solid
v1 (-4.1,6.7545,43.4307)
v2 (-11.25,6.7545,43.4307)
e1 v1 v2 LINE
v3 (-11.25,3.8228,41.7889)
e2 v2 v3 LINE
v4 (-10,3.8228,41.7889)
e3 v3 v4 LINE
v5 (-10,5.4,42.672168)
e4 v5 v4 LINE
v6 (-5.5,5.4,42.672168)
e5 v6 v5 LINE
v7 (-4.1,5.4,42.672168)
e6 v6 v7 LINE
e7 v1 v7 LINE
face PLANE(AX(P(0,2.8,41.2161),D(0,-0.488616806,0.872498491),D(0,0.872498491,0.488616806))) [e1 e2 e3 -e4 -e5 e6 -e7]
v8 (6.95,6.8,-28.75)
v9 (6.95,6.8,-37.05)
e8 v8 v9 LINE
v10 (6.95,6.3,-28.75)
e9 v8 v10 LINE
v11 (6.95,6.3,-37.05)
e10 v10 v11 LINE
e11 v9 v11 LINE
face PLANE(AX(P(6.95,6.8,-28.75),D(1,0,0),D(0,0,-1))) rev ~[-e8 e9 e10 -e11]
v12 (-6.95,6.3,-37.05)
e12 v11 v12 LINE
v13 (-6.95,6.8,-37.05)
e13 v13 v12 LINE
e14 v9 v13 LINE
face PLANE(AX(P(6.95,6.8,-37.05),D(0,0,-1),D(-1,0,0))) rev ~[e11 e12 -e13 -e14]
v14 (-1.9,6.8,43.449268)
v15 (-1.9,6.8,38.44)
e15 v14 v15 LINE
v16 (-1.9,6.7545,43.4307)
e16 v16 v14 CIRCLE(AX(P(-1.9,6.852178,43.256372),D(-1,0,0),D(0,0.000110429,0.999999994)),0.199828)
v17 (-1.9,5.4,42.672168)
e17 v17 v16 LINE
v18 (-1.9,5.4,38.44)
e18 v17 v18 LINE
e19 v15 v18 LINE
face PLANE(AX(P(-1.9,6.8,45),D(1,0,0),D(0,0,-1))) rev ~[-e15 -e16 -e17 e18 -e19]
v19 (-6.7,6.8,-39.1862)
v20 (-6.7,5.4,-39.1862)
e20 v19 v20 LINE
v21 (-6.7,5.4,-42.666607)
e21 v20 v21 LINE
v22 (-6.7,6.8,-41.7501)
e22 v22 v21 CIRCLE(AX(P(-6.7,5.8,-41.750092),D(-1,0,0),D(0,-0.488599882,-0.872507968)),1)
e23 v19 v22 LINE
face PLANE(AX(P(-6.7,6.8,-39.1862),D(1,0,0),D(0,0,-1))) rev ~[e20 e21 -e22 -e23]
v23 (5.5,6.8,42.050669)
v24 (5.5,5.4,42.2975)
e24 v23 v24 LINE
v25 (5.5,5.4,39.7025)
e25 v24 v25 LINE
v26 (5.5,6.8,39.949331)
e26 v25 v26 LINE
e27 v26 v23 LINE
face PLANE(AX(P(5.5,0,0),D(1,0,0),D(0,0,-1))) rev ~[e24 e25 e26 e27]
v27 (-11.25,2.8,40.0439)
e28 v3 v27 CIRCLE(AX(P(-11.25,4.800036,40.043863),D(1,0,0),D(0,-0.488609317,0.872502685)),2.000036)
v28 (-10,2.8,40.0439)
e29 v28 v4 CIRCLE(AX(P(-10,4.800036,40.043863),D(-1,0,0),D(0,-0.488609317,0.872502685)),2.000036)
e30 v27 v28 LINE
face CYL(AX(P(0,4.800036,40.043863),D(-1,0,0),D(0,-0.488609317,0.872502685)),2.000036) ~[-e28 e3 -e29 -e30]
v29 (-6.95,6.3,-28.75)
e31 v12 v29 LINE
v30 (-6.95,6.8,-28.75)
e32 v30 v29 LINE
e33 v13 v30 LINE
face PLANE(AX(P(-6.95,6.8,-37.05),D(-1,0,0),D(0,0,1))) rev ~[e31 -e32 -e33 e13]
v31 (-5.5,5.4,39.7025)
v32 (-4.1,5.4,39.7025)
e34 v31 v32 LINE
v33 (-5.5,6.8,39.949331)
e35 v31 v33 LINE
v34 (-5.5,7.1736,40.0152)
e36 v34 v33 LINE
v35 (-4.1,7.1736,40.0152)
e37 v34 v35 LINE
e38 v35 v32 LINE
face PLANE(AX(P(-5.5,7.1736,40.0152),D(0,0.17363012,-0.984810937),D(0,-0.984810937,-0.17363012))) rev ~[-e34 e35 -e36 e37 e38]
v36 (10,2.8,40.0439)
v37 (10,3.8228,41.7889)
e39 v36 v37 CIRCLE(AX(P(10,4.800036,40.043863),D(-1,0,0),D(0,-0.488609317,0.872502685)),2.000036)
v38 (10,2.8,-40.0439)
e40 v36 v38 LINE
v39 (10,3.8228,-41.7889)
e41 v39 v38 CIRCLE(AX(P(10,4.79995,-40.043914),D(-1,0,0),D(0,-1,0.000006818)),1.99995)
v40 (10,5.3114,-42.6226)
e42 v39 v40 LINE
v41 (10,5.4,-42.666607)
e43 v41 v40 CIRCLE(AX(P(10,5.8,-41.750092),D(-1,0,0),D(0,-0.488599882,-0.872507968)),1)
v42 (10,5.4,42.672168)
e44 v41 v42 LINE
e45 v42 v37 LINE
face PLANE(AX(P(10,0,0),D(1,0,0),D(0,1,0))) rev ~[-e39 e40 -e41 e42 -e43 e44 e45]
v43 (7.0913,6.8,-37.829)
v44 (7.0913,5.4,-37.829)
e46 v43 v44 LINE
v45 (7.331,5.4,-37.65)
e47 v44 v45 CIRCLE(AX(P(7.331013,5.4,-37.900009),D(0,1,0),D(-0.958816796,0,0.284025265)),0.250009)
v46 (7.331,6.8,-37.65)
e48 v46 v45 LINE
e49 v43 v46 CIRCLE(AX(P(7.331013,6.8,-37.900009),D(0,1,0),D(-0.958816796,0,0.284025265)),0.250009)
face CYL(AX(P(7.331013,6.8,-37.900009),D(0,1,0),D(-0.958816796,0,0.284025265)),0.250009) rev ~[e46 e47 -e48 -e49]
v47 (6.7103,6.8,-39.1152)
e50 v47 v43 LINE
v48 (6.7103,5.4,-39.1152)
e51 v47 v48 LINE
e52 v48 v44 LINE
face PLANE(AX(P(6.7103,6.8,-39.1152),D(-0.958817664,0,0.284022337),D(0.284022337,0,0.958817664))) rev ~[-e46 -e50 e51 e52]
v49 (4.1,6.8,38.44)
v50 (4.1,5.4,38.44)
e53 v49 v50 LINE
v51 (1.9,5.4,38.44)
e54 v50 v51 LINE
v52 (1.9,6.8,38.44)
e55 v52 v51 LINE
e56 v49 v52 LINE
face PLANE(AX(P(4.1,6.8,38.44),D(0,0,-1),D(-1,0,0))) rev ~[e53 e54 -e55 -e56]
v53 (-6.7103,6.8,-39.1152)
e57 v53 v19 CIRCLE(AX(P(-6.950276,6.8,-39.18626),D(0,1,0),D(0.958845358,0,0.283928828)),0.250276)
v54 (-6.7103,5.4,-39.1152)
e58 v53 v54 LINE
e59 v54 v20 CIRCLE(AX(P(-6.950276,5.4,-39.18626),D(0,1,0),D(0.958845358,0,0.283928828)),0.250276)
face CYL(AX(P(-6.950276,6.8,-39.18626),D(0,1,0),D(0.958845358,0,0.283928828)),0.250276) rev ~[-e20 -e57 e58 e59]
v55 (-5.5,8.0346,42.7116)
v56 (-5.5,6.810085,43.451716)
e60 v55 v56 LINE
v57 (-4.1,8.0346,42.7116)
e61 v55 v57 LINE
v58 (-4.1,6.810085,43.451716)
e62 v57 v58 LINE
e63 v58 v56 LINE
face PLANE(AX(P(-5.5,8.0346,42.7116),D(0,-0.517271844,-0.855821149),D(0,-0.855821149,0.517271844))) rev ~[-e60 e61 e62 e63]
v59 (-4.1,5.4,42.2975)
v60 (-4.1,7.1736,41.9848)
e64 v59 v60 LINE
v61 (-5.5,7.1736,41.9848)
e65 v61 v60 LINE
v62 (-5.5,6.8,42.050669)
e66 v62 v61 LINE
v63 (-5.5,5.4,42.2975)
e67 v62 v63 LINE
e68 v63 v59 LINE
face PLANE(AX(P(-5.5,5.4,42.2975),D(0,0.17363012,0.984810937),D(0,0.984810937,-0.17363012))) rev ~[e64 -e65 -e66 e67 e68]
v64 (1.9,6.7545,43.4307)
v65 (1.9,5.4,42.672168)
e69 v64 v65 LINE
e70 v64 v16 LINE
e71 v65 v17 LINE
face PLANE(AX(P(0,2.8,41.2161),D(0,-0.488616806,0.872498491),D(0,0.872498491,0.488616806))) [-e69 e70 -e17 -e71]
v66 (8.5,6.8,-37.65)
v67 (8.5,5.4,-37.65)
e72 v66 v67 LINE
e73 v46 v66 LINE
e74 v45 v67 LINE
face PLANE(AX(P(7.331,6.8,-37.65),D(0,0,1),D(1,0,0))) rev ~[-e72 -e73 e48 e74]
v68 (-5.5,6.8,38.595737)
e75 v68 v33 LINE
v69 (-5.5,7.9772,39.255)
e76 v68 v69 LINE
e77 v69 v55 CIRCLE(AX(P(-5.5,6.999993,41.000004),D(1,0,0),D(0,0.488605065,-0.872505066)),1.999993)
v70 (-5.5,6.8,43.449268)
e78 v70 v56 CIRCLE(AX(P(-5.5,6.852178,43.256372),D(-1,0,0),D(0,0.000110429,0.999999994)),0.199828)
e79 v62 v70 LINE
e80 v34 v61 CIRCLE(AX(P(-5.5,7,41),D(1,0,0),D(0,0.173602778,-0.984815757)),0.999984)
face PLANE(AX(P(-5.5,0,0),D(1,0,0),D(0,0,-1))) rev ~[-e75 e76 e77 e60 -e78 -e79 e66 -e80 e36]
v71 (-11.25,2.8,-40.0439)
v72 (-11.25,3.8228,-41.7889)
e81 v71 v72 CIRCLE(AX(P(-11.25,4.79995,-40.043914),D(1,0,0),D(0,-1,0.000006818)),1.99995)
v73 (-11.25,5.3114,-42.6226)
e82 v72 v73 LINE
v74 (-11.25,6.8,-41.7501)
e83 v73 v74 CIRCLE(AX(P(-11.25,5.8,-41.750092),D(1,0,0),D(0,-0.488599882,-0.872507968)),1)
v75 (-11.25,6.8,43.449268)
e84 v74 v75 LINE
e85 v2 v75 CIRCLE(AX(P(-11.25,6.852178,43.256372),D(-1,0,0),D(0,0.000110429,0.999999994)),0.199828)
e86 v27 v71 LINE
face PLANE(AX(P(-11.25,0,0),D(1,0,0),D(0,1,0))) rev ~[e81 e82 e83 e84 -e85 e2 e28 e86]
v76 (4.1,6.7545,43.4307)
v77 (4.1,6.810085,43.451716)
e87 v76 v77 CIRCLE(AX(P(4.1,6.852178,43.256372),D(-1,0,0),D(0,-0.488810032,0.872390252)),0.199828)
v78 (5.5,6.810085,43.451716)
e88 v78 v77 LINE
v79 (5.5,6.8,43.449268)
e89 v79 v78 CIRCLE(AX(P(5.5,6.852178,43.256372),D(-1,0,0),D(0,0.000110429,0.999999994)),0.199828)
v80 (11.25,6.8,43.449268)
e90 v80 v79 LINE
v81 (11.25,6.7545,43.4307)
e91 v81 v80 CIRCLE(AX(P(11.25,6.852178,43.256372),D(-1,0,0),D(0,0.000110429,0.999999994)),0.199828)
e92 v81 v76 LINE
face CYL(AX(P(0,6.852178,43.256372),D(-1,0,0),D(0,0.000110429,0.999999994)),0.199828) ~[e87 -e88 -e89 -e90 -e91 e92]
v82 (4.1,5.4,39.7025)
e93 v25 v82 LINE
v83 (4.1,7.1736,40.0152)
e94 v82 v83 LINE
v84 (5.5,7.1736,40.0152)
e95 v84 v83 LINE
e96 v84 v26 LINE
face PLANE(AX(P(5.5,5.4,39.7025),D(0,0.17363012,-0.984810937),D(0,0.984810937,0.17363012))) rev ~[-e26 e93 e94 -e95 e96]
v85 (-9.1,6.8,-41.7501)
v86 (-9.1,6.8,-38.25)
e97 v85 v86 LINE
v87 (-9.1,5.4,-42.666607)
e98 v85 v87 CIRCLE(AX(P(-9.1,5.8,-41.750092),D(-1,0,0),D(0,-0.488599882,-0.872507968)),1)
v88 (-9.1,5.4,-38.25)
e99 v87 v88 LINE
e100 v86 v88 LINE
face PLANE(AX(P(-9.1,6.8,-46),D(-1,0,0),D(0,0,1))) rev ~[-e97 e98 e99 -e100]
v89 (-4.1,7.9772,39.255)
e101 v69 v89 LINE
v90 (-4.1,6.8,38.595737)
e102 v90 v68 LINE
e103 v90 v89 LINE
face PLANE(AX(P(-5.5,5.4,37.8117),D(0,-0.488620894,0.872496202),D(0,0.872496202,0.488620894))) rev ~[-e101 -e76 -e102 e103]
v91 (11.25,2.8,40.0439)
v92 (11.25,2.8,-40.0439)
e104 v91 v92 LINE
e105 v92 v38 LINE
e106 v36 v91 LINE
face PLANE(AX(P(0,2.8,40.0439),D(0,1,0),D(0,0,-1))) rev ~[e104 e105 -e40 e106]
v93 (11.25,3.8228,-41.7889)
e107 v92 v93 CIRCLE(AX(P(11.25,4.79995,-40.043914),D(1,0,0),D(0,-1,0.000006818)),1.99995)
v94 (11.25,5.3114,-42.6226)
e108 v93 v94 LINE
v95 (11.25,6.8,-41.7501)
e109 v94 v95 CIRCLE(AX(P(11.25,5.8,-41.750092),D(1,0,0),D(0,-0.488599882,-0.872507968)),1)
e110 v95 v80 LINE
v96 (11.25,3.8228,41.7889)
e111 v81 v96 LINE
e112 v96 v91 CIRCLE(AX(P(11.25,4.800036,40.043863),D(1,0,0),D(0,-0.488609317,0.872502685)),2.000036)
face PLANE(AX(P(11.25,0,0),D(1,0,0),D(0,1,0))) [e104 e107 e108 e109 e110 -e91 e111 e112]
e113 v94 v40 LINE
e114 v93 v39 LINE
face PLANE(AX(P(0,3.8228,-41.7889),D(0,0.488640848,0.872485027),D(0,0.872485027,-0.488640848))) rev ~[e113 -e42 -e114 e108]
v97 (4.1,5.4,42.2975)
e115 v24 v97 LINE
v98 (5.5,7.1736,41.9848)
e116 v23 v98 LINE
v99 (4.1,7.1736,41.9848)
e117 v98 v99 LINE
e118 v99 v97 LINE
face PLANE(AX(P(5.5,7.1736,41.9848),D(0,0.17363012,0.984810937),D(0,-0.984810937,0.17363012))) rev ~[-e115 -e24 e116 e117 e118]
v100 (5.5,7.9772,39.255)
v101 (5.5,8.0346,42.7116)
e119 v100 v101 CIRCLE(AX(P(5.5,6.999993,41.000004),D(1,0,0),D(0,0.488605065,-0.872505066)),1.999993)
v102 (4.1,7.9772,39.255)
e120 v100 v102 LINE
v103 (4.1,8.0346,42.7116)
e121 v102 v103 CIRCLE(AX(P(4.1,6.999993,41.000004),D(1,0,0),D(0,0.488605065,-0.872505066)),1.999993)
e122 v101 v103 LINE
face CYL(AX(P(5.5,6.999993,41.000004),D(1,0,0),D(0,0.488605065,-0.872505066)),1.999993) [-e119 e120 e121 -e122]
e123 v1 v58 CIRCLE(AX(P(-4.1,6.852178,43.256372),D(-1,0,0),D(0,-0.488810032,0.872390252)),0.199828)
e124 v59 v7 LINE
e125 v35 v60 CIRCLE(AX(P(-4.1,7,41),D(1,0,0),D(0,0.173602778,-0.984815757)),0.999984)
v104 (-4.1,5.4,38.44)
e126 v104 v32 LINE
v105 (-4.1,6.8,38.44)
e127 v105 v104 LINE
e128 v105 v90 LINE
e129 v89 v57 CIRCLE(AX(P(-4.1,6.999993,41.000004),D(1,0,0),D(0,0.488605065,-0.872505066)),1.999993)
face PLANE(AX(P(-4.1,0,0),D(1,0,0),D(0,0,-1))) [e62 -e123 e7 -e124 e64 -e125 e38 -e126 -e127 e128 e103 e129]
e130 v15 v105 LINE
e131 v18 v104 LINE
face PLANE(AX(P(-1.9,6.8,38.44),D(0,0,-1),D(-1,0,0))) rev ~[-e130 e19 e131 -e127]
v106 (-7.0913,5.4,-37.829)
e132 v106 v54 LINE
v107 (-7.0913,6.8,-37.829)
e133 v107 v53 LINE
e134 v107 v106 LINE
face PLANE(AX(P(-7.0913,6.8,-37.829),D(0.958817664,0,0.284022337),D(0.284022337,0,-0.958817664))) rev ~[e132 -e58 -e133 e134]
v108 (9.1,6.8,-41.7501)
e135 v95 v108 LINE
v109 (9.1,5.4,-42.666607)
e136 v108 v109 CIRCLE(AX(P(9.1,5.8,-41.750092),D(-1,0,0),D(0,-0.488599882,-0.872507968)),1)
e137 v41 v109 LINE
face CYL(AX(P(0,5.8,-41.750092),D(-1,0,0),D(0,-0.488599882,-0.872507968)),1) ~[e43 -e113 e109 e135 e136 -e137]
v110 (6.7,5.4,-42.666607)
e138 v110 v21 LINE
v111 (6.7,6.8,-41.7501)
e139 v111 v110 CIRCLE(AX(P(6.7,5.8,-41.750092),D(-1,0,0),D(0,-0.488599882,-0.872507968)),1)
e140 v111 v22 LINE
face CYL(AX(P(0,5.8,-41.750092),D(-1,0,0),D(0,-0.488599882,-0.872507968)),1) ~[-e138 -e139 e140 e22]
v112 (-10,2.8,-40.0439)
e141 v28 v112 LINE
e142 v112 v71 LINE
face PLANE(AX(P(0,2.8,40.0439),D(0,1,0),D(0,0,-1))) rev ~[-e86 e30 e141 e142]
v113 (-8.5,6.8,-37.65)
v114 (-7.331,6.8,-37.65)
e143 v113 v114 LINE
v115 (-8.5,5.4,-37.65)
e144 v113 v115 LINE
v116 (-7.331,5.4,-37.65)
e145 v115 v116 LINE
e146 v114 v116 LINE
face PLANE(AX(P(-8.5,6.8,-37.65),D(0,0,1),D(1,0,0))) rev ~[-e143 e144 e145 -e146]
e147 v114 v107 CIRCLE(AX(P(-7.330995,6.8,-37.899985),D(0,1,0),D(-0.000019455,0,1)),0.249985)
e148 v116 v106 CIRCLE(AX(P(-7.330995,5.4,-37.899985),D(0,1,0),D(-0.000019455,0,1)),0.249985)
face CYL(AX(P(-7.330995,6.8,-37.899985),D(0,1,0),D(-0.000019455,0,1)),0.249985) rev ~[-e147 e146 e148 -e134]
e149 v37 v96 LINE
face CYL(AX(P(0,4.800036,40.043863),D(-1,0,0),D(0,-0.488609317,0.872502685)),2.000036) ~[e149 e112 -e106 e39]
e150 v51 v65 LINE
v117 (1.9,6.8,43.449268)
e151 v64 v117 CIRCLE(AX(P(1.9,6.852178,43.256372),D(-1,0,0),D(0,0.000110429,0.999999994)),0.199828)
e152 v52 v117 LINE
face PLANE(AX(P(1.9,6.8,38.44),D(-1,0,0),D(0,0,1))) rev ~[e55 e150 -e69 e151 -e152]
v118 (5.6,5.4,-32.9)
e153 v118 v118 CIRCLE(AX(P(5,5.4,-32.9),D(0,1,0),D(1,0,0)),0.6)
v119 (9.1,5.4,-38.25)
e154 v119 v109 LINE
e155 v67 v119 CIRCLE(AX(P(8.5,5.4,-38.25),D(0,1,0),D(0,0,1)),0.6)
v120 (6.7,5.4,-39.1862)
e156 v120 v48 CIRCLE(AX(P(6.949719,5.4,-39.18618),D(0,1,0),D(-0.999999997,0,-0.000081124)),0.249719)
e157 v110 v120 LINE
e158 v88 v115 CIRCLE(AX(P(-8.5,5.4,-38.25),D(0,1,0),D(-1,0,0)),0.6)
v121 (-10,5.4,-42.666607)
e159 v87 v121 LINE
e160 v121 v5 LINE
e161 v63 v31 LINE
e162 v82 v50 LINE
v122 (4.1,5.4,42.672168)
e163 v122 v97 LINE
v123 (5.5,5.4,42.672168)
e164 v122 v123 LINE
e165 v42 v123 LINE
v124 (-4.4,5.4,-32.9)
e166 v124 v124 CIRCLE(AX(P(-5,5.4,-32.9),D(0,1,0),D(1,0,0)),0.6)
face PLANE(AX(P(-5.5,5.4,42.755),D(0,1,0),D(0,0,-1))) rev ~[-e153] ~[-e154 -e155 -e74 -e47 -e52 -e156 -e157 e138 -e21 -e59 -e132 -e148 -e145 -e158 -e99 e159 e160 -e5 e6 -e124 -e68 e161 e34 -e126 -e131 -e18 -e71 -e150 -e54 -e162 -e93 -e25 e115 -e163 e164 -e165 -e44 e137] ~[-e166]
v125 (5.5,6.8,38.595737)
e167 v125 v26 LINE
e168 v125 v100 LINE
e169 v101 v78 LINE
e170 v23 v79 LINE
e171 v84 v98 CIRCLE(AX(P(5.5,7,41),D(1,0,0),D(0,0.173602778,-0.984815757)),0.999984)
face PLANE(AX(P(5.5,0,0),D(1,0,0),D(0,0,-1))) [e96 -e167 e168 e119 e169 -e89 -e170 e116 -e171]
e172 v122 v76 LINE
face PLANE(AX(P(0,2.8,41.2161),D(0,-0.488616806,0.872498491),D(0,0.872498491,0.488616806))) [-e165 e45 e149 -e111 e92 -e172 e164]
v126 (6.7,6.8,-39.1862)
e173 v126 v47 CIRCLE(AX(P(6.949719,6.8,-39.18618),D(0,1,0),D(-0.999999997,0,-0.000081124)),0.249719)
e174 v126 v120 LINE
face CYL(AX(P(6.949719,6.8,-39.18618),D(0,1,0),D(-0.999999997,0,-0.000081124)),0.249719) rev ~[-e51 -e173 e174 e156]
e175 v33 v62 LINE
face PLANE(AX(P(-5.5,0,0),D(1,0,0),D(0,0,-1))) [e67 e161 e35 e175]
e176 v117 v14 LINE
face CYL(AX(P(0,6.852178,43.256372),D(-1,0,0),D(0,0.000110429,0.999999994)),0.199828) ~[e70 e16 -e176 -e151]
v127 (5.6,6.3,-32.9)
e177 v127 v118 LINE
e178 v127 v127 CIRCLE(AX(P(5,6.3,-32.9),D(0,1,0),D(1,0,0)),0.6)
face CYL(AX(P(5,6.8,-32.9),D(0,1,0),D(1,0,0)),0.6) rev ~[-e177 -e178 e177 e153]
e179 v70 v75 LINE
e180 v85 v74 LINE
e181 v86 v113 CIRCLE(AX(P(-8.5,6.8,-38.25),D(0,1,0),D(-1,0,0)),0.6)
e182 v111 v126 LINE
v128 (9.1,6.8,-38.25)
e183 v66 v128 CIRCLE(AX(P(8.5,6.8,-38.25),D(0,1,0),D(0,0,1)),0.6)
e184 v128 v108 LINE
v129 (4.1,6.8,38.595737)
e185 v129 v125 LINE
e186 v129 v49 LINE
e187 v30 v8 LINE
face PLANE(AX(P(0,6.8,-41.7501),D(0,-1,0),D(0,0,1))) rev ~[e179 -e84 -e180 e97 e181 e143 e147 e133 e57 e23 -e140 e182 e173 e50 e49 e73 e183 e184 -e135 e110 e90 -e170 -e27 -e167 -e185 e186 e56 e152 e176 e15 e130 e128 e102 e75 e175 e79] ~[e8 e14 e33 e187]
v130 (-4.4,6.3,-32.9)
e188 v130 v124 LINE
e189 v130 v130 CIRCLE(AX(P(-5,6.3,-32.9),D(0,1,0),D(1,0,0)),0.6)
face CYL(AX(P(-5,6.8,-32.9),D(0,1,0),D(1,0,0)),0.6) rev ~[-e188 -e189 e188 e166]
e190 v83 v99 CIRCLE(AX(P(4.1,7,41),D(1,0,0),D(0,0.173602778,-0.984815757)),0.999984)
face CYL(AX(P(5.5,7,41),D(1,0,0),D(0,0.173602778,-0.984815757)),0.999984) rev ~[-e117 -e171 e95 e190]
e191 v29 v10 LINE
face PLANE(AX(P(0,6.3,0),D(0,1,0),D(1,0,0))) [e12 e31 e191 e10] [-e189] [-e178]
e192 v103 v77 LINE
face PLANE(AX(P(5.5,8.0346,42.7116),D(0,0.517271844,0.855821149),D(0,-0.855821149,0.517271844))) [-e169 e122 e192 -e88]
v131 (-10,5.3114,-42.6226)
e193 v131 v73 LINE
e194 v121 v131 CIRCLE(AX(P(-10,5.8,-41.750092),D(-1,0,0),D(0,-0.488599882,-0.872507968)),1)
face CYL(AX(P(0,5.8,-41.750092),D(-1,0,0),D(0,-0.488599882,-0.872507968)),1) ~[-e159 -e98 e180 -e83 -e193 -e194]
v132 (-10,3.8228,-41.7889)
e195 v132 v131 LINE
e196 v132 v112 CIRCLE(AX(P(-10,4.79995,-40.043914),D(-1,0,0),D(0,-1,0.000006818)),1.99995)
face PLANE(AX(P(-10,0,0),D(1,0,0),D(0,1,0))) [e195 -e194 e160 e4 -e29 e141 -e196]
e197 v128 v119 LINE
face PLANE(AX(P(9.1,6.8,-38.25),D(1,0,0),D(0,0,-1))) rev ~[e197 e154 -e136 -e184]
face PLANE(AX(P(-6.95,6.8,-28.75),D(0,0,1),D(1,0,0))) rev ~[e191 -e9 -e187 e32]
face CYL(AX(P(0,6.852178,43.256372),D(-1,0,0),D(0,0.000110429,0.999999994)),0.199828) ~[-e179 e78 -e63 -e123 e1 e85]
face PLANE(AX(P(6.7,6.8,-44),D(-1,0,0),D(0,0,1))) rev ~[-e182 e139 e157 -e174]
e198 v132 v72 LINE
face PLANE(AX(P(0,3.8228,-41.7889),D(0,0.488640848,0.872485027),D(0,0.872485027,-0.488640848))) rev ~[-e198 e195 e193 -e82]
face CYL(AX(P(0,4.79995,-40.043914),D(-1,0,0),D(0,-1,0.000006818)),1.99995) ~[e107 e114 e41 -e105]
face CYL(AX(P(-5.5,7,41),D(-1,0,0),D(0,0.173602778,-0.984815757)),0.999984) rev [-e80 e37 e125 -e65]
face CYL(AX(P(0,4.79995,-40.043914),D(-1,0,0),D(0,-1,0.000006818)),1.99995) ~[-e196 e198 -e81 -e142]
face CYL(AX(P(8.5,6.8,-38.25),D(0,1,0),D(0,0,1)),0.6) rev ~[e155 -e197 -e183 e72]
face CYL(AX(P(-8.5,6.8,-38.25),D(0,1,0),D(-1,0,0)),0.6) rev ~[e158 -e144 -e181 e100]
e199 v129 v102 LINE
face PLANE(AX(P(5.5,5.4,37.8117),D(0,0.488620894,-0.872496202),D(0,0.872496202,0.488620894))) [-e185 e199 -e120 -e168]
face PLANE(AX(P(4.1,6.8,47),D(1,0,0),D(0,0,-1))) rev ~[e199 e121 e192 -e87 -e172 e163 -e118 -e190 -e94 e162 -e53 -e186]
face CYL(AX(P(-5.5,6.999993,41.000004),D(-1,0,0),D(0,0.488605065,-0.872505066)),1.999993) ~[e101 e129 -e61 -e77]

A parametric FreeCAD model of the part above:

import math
import FreeCAD as App
import Part
import Sketcher

V = App.Vector
Q = App.Units.Quantity

doc = App.newDocument("Part")
body = doc.addObject("PartDesign::Body", "Body")

sketch1 = body.newObject("Sketcher::SketchObject", "Sketch")
sketch1.AttachmentSupport = (doc.getObject("YZ_Plane"), [""])
sketch1.MapMode = "FlatFace"
sketch1.addGeometry(Part.LineSegment(V(6.8, -41.8, 0), V(6.8, 43.5, 0)), False)
sketch1.addGeometry(Part.LineSegment(V(6.8, 43.5, 0), V(3.8, 41.8, 0)), False)
sketch1.addGeometry(Part.ArcOfCircle(Part.Circle(V(4.8, 40, 0), V(0, 0, 1), 2), math.radians(119), math.radians(180)), False)
sketch1.addGeometry(Part.LineSegment(V(2.8, 40, 0), V(2.8, -40, 0)), False)
sketch1.addGeometry(Part.ArcOfCircle(Part.Circle(V(4.8, -40, 0), V(0, 0, 1), 2), math.radians(180), math.radians(241)), False)
sketch1.addGeometry(Part.LineSegment(V(3.8, -41.8, 0), V(5.3, -42.6, 0)), False)
sketch1.addGeometry(Part.ArcOfCircle(Part.Circle(V(5.8, -41.8, 0), V(0, 0, 1), 1), math.radians(-119), math.radians(0)), False)
sketch1.addConstraint(Sketcher.Constraint("Coincident", 0, 2, 1, 1))
sketch1.addConstraint(Sketcher.Constraint("Tangent", 1, 2, 2, 1))
sketch1.addConstraint(Sketcher.Constraint("Tangent", 2, 2, 3, 1))
sketch1.addConstraint(Sketcher.Constraint("Tangent", 3, 2, 4, 1))
sketch1.addConstraint(Sketcher.Constraint("Tangent", 4, 2, 5, 1))
sketch1.addConstraint(Sketcher.Constraint("Tangent", 5, 2, 6, 1))
sketch1.addConstraint(Sketcher.Constraint("Tangent", 6, 2, 0, 1))
sketch1.addConstraint(Sketcher.Constraint("Vertical", 0))
sketch1.addConstraint(Sketcher.Constraint("Vertical", 3))
sketch1.addConstraint(Sketcher.Constraint("Equal", 2, 4))
sketch1.addConstraint(Sketcher.Constraint("Symmetric", 1, 2, 4, 2, -1))
sketch1.addConstraint(Sketcher.Constraint("Radius", 2, 2.0))
sketch1.addConstraint(Sketcher.Constraint("Radius", 6, 1.0))
sketch1.addConstraint(Sketcher.Constraint("DistanceX", 4, 3, 6, 3, 1.0))
sketch1.addConstraint(Sketcher.Constraint("DistanceX", -1, 1, 2, 3, 4.8))
sketch1.addConstraint(Sketcher.Constraint("Angle", 1, Q("-150.7502 deg")))
sketch1.addConstraint(Sketcher.Constraint("DistanceY", 4, 3, 0, 2, 83.5))
pad1 = body.newObject("PartDesign::Pad", "Pad")
pad1.Profile = sketch1
pad1.Length = 22.5
pad1.Midplane = True

sketch2 = body.newObject("Sketcher::SketchObject", "Sketch001")
sketch2.AttachmentSupport = (doc.getObject("YZ_Plane"), [""])
sketch2.MapMode = "FlatFace"
sketch2.addGeometry(Part.LineSegment(V(7.16, 48.3, 0), V(6.78, 48.4, 0)), False)
sketch2.addGeometry(Part.LineSegment(V(6.78, 48.4, 0), V(-1, 48.4, 0)), False)
sketch2.addGeometry(Part.LineSegment(V(-1, 48.4, 0), V(-1, -48.4, 0)), False)
sketch2.addGeometry(Part.LineSegment(V(-1, -48.4, 0), V(6.78, -48.4, 0)), False)
sketch2.addGeometry(Part.LineSegment(V(6.78, -48.4, 0), V(7.16, -48.3, 0)), False)
sketch2.addGeometry(Part.ArcOfCircle(Part.Circle(V(6.9, -47.33, 0), V(0, 0, 1), 1), math.radians(-75), math.radians(0)), False)
sketch2.addGeometry(Part.LineSegment(V(7.9, -47.33, 0), V(7.9, -45.08, 0)), False)
sketch2.addGeometry(Part.ArcOfCircle(Part.Circle(V(6.9, -45.08, 0), V(0, 0, 1), 1), math.radians(0), math.radians(61)), False)
sketch2.addGeometry(Part.LineSegment(V(7.39, -44.2, 0), V(5.4, -43.09, 0)), False)
sketch2.addGeometry(Part.LineSegment(V(5.4, -43.09, 0), V(5.4, 43.09, 0)), False)
sketch2.addGeometry(Part.LineSegment(V(5.4, 43.09, 0), V(7.39, 44.2, 0)), False)
sketch2.addGeometry(Part.ArcOfCircle(Part.Circle(V(6.9, 45.08, 0), V(0, 0, 1), 1), math.radians(-61), math.radians(0)), False)
sketch2.addGeometry(Part.LineSegment(V(7.9, 45.08, 0), V(7.9, 47.33, 0)), False)
sketch2.addGeometry(Part.ArcOfCircle(Part.Circle(V(6.9, 47.33, 0), V(0, 0, 1), 1), math.radians(0), math.radians(75)), False)
sketch2.addConstraint(Sketcher.Constraint("Coincident", 0, 2, 1, 1))
sketch2.addConstraint(Sketcher.Constraint("Coincident", 1, 2, 2, 1))
sketch2.addConstraint(Sketcher.Constraint("Coincident", 2, 2, 3, 1))
sketch2.addConstraint(Sketcher.Constraint("Coincident", 3, 2, 4, 1))
sketch2.addConstraint(Sketcher.Constraint("Tangent", 4, 2, 5, 1))
sketch2.addConstraint(Sketcher.Constraint("Tangent", 5, 2, 6, 1))
sketch2.addConstraint(Sketcher.Constraint("Tangent", 6, 2, 7, 1))
sketch2.addConstraint(Sketcher.Constraint("Tangent", 7, 2, 8, 1))
sketch2.addConstraint(Sketcher.Constraint("Coincident", 8, 2, 9, 1))
sketch2.addConstraint(Sketcher.Constraint("Coincident", 9, 2, 10, 1))
sketch2.addConstraint(Sketcher.Constraint("Tangent", 10, 2, 11, 1))
sketch2.addConstraint(Sketcher.Constraint("Tangent", 11, 2, 12, 1))
sketch2.addConstraint(Sketcher.Constraint("Tangent", 12, 2, 13, 1))
sketch2.addConstraint(Sketcher.Constraint("Tangent", 13, 2, 0, 1))
sketch2.addConstraint(Sketcher.Constraint("Horizontal", 1))
sketch2.addConstraint(Sketcher.Constraint("Vertical", 2))
sketch2.addConstraint(Sketcher.Constraint("Horizontal", 3))
sketch2.addConstraint(Sketcher.Constraint("Vertical", 6))
sketch2.addConstraint(Sketcher.Constraint("Vertical", 9))
sketch2.addConstraint(Sketcher.Constraint("Vertical", 12))
sketch2.addConstraint(Sketcher.Constraint("Equal", 5, 7))
sketch2.addConstraint(Sketcher.Constraint("Equal", 7, 11))
sketch2.addConstraint(Sketcher.Constraint("Equal", 11, 13))
sketch2.addConstraint(Sketcher.Constraint("Symmetric", 7, 3, 11, 3, -1))
sketch2.addConstraint(Sketcher.Constraint("Symmetric", 0, 2, 3, 2, -1))
sketch2.addConstraint(Sketcher.Constraint("Vertical", 7, 2, 10, 2))
sketch2.addConstraint(Sketcher.Constraint("Vertical", 4, 2, 13, 2))
sketch2.addConstraint(Sketcher.Constraint("Radius", 5, 1.0))
sketch2.addConstraint(Sketcher.Constraint("Angle", 0, Q("165 deg")))
sketch2.addConstraint(Sketcher.Constraint("DistanceY", 2, 2, 2, 1, 96.8))
sketch2.addConstraint(Sketcher.Constraint("DistanceX", 1, 2, -1, 1, 1.0))
sketch2.addConstraint(Sketcher.Constraint("DistanceX", 1, 2, 1, 1, 7.78))
sketch2.addConstraint(Sketcher.Constraint("DistanceY", 9, 1, 9, 2, 86.18))
sketch2.addConstraint(Sketcher.Constraint("DistanceX", -1, 1, 5, 3, 6.9))
sketch2.addConstraint(Sketcher.Constraint("DistanceX", -1, 1, 8, 2, 5.4))
sketch2.addConstraint(Sketcher.Constraint("Angle", 8, Q("150.7493 deg")))
pocket1 = body.newObject("PartDesign::Pocket", "Pocket")
pocket1.Profile = sketch2
pocket1.Length = 20
pocket1.Midplane = True

sketch3 = body.newObject("Sketcher::SketchObject", "Sketch002")
sketch3.AttachmentSupport = (doc.getObject("YZ_Plane"), [""])
sketch3.MapMode = "FlatFace"
sketch3.AttachmentOffset = App.Placement(V(0, 0, 5.5), App.Rotation())
sketch3.addGeometry(Part.LineSegment(V(8.03, 42.71, 0), V(6.73, 43.5, 0)), False)
sketch3.addGeometry(Part.LineSegment(V(6.73, 43.5, 0), V(5.4, 42.76, 0)), False)
sketch3.addGeometry(Part.LineSegment(V(5.4, 42.76, 0), V(5.4, 42.3, 0)), False)
sketch3.addGeometry(Part.LineSegment(V(5.4, 42.3, 0), V(7.17, 41.98, 0)), False)
sketch3.addGeometry(Part.ArcOfCircle(Part.Circle(V(7, 41, 0), V(0, 0, 1), 1), math.radians(-80), math.radians(80)), False)
sketch3.addGeometry(Part.LineSegment(V(7.17, 40.02, 0), V(5.4, 39.7, 0)), False)
sketch3.addGeometry(Part.LineSegment(V(5.4, 39.7, 0), V(5.4, 37.81, 0)), False)
sketch3.addGeometry(Part.LineSegment(V(5.4, 37.81, 0), V(7.98, 39.26, 0)), False)
sketch3.addGeometry(Part.ArcOfCircle(Part.Circle(V(7, 41, 0), V(0, 0, 1), 2), math.radians(-61), math.radians(59)), False)
sketch3.addConstraint(Sketcher.Constraint("Coincident", 0, 2, 1, 1))
sketch3.addConstraint(Sketcher.Constraint("Coincident", 1, 2, 2, 1))
sketch3.addConstraint(Sketcher.Constraint("Coincident", 2, 2, 3, 1))
sketch3.addConstraint(Sketcher.Constraint("Tangent", 3, 2, 4, 2))
sketch3.addConstraint(Sketcher.Constraint("Tangent", 4, 1, 5, 1))
sketch3.addConstraint(Sketcher.Constraint("Coincident", 5, 2, 6, 1))
sketch3.addConstraint(Sketcher.Constraint("Coincident", 6, 2, 7, 1))
sketch3.addConstraint(Sketcher.Constraint("Tangent", 7, 2, 8, 1))
sketch3.addConstraint(Sketcher.Constraint("Tangent", 8, 2, 0, 1))
sketch3.addConstraint(Sketcher.Constraint("Vertical", 2))
sketch3.addConstraint(Sketcher.Constraint("Vertical", 6))
sketch3.addConstraint(Sketcher.Constraint("Coincident", 8, 3, 4, 3))
sketch3.addConstraint(Sketcher.Constraint("Parallel", 1, 7))
sketch3.addConstraint(Sketcher.Constraint("Vertical", 3, 2, 4, 1))
sketch3.addConstraint(Sketcher.Constraint("Vertical", 2, 2, 5, 2))
sketch3.addConstraint(Sketcher.Constraint("Radius", 4, 1.0))
sketch3.addConstraint(Sketcher.Constraint("Radius", 8, 2.0))
sketch3.addConstraint(Sketcher.Constraint("Angle", 3, Q("-9.999 deg")))
sketch3.addConstraint(Sketcher.Constraint("DistanceX", -1, 1, 4, 3, 7.0))
sketch3.addConstraint(Sketcher.Constraint("DistanceY", -1, 1, 4, 3, 41.0))
sketch3.addConstraint(Sketcher.Constraint("DistanceY", -1, 1, 0, 2, 43.5))
sketch3.addConstraint(Sketcher.Constraint("DistanceX", -1, 1, 1, 2, 5.4))
sketch3.addConstraint(Sketcher.Constraint("Angle", 0, Q("148.8506 deg")))
sketch3.addConstraint(Sketcher.Constraint("Angle", 7, Q("29.25 deg")))
pad2 = body.newObject("PartDesign::Pad", "Pad001")
pad2.Profile = sketch3
pad2.Length = 1.4
pad2.Reversed = True

sketch4 = body.newObject("Sketcher::SketchObject", "Sketch003")
sketch4.AttachmentSupport = (doc.getObject("YZ_Plane"), [""])
sketch4.MapMode = "FlatFace"
sketch4.AttachmentOffset = App.Placement(V(0, 0, -5.5), App.Rotation())
sketch4.addGeometry(Part.LineSegment(V(8.03, 42.71, 0), V(6.73, 43.5, 0)), False)
sketch4.addGeometry(Part.LineSegment(V(6.73, 43.5, 0), V(5.4, 42.76, 0)), False)
sketch4.addGeometry(Part.LineSegment(V(5.4, 42.76, 0), V(5.4, 42.3, 0)), False)
sketch4.addGeometry(Part.LineSegment(V(5.4, 42.3, 0), V(7.17, 41.98, 0)), False)
sketch4.addGeometry(Part.ArcOfCircle(Part.Circle(V(7, 41, 0), V(0, 0, 1), 1), math.radians(-80), math.radians(80)), False)
sketch4.addGeometry(Part.LineSegment(V(7.17, 40.02, 0), V(5.4, 39.7, 0)), False)
sketch4.addGeometry(Part.LineSegment(V(5.4, 39.7, 0), V(5.4, 37.81, 0)), False)
sketch4.addGeometry(Part.LineSegment(V(5.4, 37.81, 0), V(7.98, 39.26, 0)), False)
sketch4.addGeometry(Part.ArcOfCircle(Part.Circle(V(7, 41, 0), V(0, 0, 1), 2), math.radians(-61), math.radians(59)), False)
sketch4.addConstraint(Sketcher.Constraint("Coincident", 0, 2, 1, 1))
sketch4.addConstraint(Sketcher.Constraint("Coincident", 1, 2, 2, 1))
sketch4.addConstraint(Sketcher.Constraint("Coincident", 2, 2, 3, 1))
sketch4.addConstraint(Sketcher.Constraint("Tangent", 3, 2, 4, 2))
sketch4.addConstraint(Sketcher.Constraint("Tangent", 4, 1, 5, 1))
sketch4.addConstraint(Sketcher.Constraint("Coincident", 5, 2, 6, 1))
sketch4.addConstraint(Sketcher.Constraint("Coincident", 6, 2, 7, 1))
sketch4.addConstraint(Sketcher.Constraint("Tangent", 7, 2, 8, 1))
sketch4.addConstraint(Sketcher.Constraint("Tangent", 8, 2, 0, 1))
sketch4.addConstraint(Sketcher.Constraint("Vertical", 2))
sketch4.addConstraint(Sketcher.Constraint("Vertical", 6))
sketch4.addConstraint(Sketcher.Constraint("Coincident", 8, 3, 4, 3))
sketch4.addConstraint(Sketcher.Constraint("Parallel", 1, 7))
sketch4.addConstraint(Sketcher.Constraint("Vertical", 3, 2, 4, 1))
sketch4.addConstraint(Sketcher.Constraint("Vertical", 2, 2, 5, 2))
sketch4.addConstraint(Sketcher.Constraint("Radius", 4, 1.0))
sketch4.addConstraint(Sketcher.Constraint("Radius", 8, 2.0))
sketch4.addConstraint(Sketcher.Constraint("Angle", 3, Q("-9.999 deg")))
sketch4.addConstraint(Sketcher.Constraint("DistanceX", -1, 1, 4, 3, 7.0))
sketch4.addConstraint(Sketcher.Constraint("DistanceY", -1, 1, 4, 3, 41.0))
sketch4.addConstraint(Sketcher.Constraint("DistanceY", -1, 1, 0, 2, 43.5))
sketch4.addConstraint(Sketcher.Constraint("DistanceX", -1, 1, 1, 2, 5.4))
sketch4.addConstraint(Sketcher.Constraint("Angle", 0, Q("148.8506 deg")))
sketch4.addConstraint(Sketcher.Constraint("Angle", 7, Q("29.25 deg")))
pad3 = body.newObject("PartDesign::Pad", "Pad002")
pad3.Profile = sketch4
pad3.Length = 1.4

sketch5 = body.newObject("Sketcher::SketchObject", "Sketch004")
sketch5.AttachmentSupport = (doc.getObject("YZ_Plane"), [""])
sketch5.MapMode = "FlatFace"
sketch5.addGeometry(Part.LineSegment(V(7.3, 43.46, 0), V(7.3, 45, 0)), False)
sketch5.addGeometry(Part.LineSegment(V(7.3, 45, 0), V(2.8, 45, 0)), False)
sketch5.addGeometry(Part.LineSegment(V(2.8, 45, 0), V(2.8, 41.22, 0)), False)
sketch5.addGeometry(Part.LineSegment(V(2.8, 41.22, 0), V(6.75, 43.43, 0)), False)
sketch5.addGeometry(Part.ArcOfCircle(Part.Circle(V(6.85, 43.26, 0), V(0, 0, 1), 0.2), math.radians(90), math.radians(119)), False)
sketch5.addGeometry(Part.LineSegment(V(6.85, 43.46, 0), V(7.3, 43.46, 0)), False)
sketch5.addConstraint(Sketcher.Constraint("Coincident", 0, 2, 1, 1))
sketch5.addConstraint(Sketcher.Constraint("Coincident", 1, 2, 2, 1))
sketch5.addConstraint(Sketcher.Constraint("Coincident", 2, 2, 3, 1))
sketch5.addConstraint(Sketcher.Constraint("Tangent", 3, 2, 4, 2))
sketch5.addConstraint(Sketcher.Constraint("Tangent", 4, 1, 5, 1))
sketch5.addConstraint(Sketcher.Constraint("Coincident", 5, 2, 0, 1))
sketch5.addConstraint(Sketcher.Constraint("Vertical", 0))
sketch5.addConstraint(Sketcher.Constraint("Horizontal", 1))
sketch5.addConstraint(Sketcher.Constraint("Vertical", 2))
sketch5.addConstraint(Sketcher.Constraint("Horizontal", 5))
sketch5.addConstraint(Sketcher.Constraint("Radius", 4, 0.2))
sketch5.addConstraint(Sketcher.Constraint("DistanceX", 1, 2, 1, 1, 4.5))
sketch5.addConstraint(Sketcher.Constraint("DistanceY", -1, 1, 0, 2, 45.0))
sketch5.addConstraint(Sketcher.Constraint("DistanceX", -1, 1, 0, 2, 7.3))
sketch5.addConstraint(Sketcher.Constraint("Angle", 3, Q("29.2497 deg")))
sketch5.addConstraint(Sketcher.Constraint("DistanceY", 2, 2, 2, 1, 3.784))
sketch5.addConstraint(Sketcher.Constraint("DistanceY", 2, 2, 4, 3, 2.04))
pocket2 = body.newObject("PartDesign::Pocket", "Pocket001")
pocket2.Profile = sketch5
pocket2.Length = 24
pocket2.Midplane = True

sketch6 = body.newObject("Sketcher::SketchObject", "Sketch005")
sketch6.AttachmentSupport = (doc.getObject("XZ_Plane"), [""])
sketch6.MapMode = "FlatFace"
sketch6.AttachmentOffset = App.Placement(V(0, 0, -6.8), App.Rotation())
sketch6.addGeometry(Part.LineSegment(V(-1.9, 38.4, 0), V(-4.1, 38.4, 0)), False)
sketch6.addGeometry(Part.LineSegment(V(-4.1, 38.4, 0), V(-4.1, 47, 0)), False)
sketch6.addGeometry(Part.LineSegment(V(-4.1, 47, 0), V(4.1, 47, 0)), False)
sketch6.addGeometry(Part.LineSegment(V(4.1, 47, 0), V(4.1, 38.4, 0)), False)
sketch6.addGeometry(Part.LineSegment(V(4.1, 38.4, 0), V(1.9, 38.4, 0)), False)
sketch6.addGeometry(Part.LineSegment(V(1.9, 38.4, 0), V(1.9, 45, 0)), False)
sketch6.addGeometry(Part.LineSegment(V(1.9, 45, 0), V(-1.9, 45, 0)), False)
sketch6.addGeometry(Part.LineSegment(V(-1.9, 45, 0), V(-1.9, 38.4, 0)), False)
sketch6.addConstraint(Sketcher.Constraint("Coincident", 0, 2, 1, 1))
sketch6.addConstraint(Sketcher.Constraint("Coincident", 1, 2, 2, 1))
sketch6.addConstraint(Sketcher.Constraint("Coincident", 2, 2, 3, 1))
sketch6.addConstraint(Sketcher.Constraint("Coincident", 3, 2, 4, 1))
sketch6.addConstraint(Sketcher.Constraint("Coincident", 4, 2, 5, 1))
sketch6.addConstraint(Sketcher.Constraint("Coincident", 5, 2, 6, 1))
sketch6.addConstraint(Sketcher.Constraint("Coincident", 6, 2, 7, 1))
sketch6.addConstraint(Sketcher.Constraint("Coincident", 7, 2, 0, 1))
sketch6.addConstraint(Sketcher.Constraint("Horizontal", 0))
sketch6.addConstraint(Sketcher.Constraint("Vertical", 1))
sketch6.addConstraint(Sketcher.Constraint("Horizontal", 2))
sketch6.addConstraint(Sketcher.Constraint("Vertical", 3))
sketch6.addConstraint(Sketcher.Constraint("Horizontal", 4))
sketch6.addConstraint(Sketcher.Constraint("Vertical", 5))
sketch6.addConstraint(Sketcher.Constraint("Horizontal", 6))
sketch6.addConstraint(Sketcher.Constraint("Vertical", 7))
sketch6.addConstraint(Sketcher.Constraint("Symmetric", 0, 2, 3, 2, -2))
sketch6.addConstraint(Sketcher.Constraint("Equal", 0, 4))
sketch6.addConstraint(Sketcher.Constraint("DistanceX", 0, 2, 0, 1, 2.2))
sketch6.addConstraint(Sketcher.Constraint("DistanceX", 2, 1, 2, 2, 8.2))
sketch6.addConstraint(Sketcher.Constraint("DistanceY", -1, 1, 1, 2, 47.0))
sketch6.addConstraint(Sketcher.Constraint("DistanceY", -1, 1, 5, 2, 45.0))
sketch6.addConstraint(Sketcher.Constraint("DistanceY", 1, 1, 1, 2, 8.56))
pocket3 = body.newObject("PartDesign::Pocket", "Pocket002")
pocket3.Profile = sketch6
pocket3.Length = 1.5
pocket3.Reversed = True

sketch7 = body.newObject("Sketcher::SketchObject", "Sketch006")
sketch7.AttachmentSupport = (doc.getObject("YZ_Plane"), [""])
sketch7.MapMode = "FlatFace"
sketch7.AttachmentOffset = App.Placement(V(0, 0, 5.5), App.Rotation())
sketch7.addGeometry(Part.LineSegment(V(7.2, 42, 0), V(5.4, 42.3, 0)), False)
sketch7.addGeometry(Part.LineSegment(V(5.4, 42.3, 0), V(5.4, 39.7, 0)), False)
sketch7.addGeometry(Part.LineSegment(V(5.4, 39.7, 0), V(7.2, 40, 0)), False)
sketch7.addGeometry(Part.ArcOfCircle(Part.Circle(V(7, 41, 0), V(0, 0, 1), 1), math.radians(-80), math.radians(80)), False)
sketch7.addConstraint(Sketcher.Constraint("Coincident", 0, 2, 1, 1))
sketch7.addConstraint(Sketcher.Constraint("Coincident", 1, 2, 2, 1))
sketch7.addConstraint(Sketcher.Constraint("Tangent", 2, 2, 3, 1))
sketch7.addConstraint(Sketcher.Constraint("Tangent", 3, 2, 0, 1))
sketch7.addConstraint(Sketcher.Constraint("Vertical", 1))
sketch7.addConstraint(Sketcher.Constraint("Vertical", 2, 2, 3, 2))
sketch7.addConstraint(Sketcher.Constraint("Radius", 3, 1.0))
sketch7.addConstraint(Sketcher.Constraint("Angle", 0, Q("170.001 deg")))
sketch7.addConstraint(Sketcher.Constraint("DistanceX", -1, 1, 3, 3, 7.0))
sketch7.addConstraint(Sketcher.Constraint("DistanceY", -1, 1, 3, 3, 41.0))
sketch7.addConstraint(Sketcher.Constraint("DistanceX", -1, 1, 0, 2, 5.4))
pocket4 = body.newObject("PartDesign::Pocket", "Pocket003")
pocket4.Profile = sketch7
pocket4.Length = 1.5

sketch8 = body.newObject("Sketcher::SketchObject", "Sketch007")
sketch8.AttachmentSupport = (doc.getObject("YZ_Plane"), [""])
sketch8.MapMode = "FlatFace"
sketch8.AttachmentOffset = App.Placement(V(0, 0, -5.5), App.Rotation())
sketch8.addGeometry(Part.LineSegment(V(7.2, 42, 0), V(5.4, 42.3, 0)), False)
sketch8.addGeometry(Part.LineSegment(V(5.4, 42.3, 0), V(5.4, 39.7, 0)), False)
sketch8.addGeometry(Part.LineSegment(V(5.4, 39.7, 0), V(7.2, 40, 0)), False)
sketch8.addGeometry(Part.ArcOfCircle(Part.Circle(V(7, 41, 0), V(0, 0, 1), 1), math.radians(-80), math.radians(80)), False)
sketch8.addConstraint(Sketcher.Constraint("Coincident", 0, 2, 1, 1))
sketch8.addConstraint(Sketcher.Constraint("Coincident", 1, 2, 2, 1))
sketch8.addConstraint(Sketcher.Constraint("Tangent", 2, 2, 3, 1))
sketch8.addConstraint(Sketcher.Constraint("Tangent", 3, 2, 0, 1))
sketch8.addConstraint(Sketcher.Constraint("Vertical", 1))
sketch8.addConstraint(Sketcher.Constraint("Vertical", 2, 2, 3, 2))
sketch8.addConstraint(Sketcher.Constraint("Radius", 3, 1.0))
sketch8.addConstraint(Sketcher.Constraint("Angle", 0, Q("170.001 deg")))
sketch8.addConstraint(Sketcher.Constraint("DistanceX", -1, 1, 3, 3, 7.0))
sketch8.addConstraint(Sketcher.Constraint("DistanceY", -1, 1, 3, 3, 41.0))
sketch8.addConstraint(Sketcher.Constraint("DistanceX", -1, 1, 0, 2, 5.4))
pocket5 = body.newObject("PartDesign::Pocket", "Pocket004")
pocket5.Profile = sketch8
pocket5.Length = 1.5
pocket5.Reversed = True

sketch9 = body.newObject("Sketcher::SketchObject", "Sketch008")
sketch9.AttachmentSupport = (doc.getObject("XZ_Plane"), [""])
sketch9.MapMode = "FlatFace"
sketch9.AttachmentOffset = App.Placement(V(0, 0, -6.8), App.Rotation())
sketch9.addGeometry(Part.LineSegment(V(9.1, -46, 0), V(-9.1, -46, 0)), False)
sketch9.addGeometry(Part.LineSegment(V(-9.1, -46, 0), V(-9.1, -38.25, 0)), False)
sketch9.addGeometry(Part.ArcOfCircle(Part.Circle(V(-8.5, -38.25, 0), V(0, 0, 1), 0.6), math.radians(90), math.radians(180)), False)
sketch9.addGeometry(Part.LineSegment(V(-8.5, -37.65, 0), V(-7.33, -37.65, 0)), False)
sketch9.addGeometry(Part.ArcOfCircle(Part.Circle(V(-7.33, -37.9, 0), V(0, 0, 1), 0.25), math.radians(16), math.radians(90)), False)
sketch9.addGeometry(Part.LineSegment(V(-7.09, -37.83, 0), V(-6.71, -39.12, 0)), False)
sketch9.addGeometry(Part.ArcOfCircle(Part.Circle(V(-6.95, -39.19, 0), V(0, 0, 1), 0.25), math.radians(0), math.radians(16.5)), False)
sketch9.addGeometry(Part.LineSegment(V(-6.7, -39.19, 0), V(-6.7, -44, 0)), False)
sketch9.addGeometry(Part.LineSegment(V(-6.7, -44, 0), V(6.7, -44, 0)), False)
sketch9.addGeometry(Part.LineSegment(V(6.7, -44, 0), V(6.7, -39.19, 0)), False)
sketch9.addGeometry(Part.ArcOfCircle(Part.Circle(V(6.95, -39.19, 0), V(0, 0, 1), 0.25), math.radians(163.5), math.radians(180)), False)
sketch9.addGeometry(Part.LineSegment(V(6.71, -39.12, 0), V(7.09, -37.83, 0)), False)
sketch9.addGeometry(Part.ArcOfCircle(Part.Circle(V(7.33, -37.9, 0), V(0, 0, 1), 0.25), math.radians(90), math.radians(164)), False)
sketch9.addGeometry(Part.LineSegment(V(7.33, -37.65, 0), V(8.5, -37.65, 0)), False)
sketch9.addGeometry(Part.ArcOfCircle(Part.Circle(V(8.5, -38.25, 0), V(0, 0, 1), 0.6), math.radians(0), math.radians(90)), False)
sketch9.addGeometry(Part.LineSegment(V(9.1, -38.25, 0), V(9.1, -46, 0)), False)
sketch9.addConstraint(Sketcher.Constraint("Coincident", 0, 2, 1, 1))
sketch9.addConstraint(Sketcher.Constraint("Tangent", 1, 2, 2, 2))
sketch9.addConstraint(Sketcher.Constraint("Tangent", 2, 1, 3, 1))
sketch9.addConstraint(Sketcher.Constraint("Tangent", 3, 2, 4, 2))
sketch9.addConstraint(Sketcher.Constraint("Tangent", 4, 1, 5, 1))
sketch9.addConstraint(Sketcher.Constraint("Tangent", 5, 2, 6, 2))
sketch9.addConstraint(Sketcher.Constraint("Tangent", 6, 1, 7, 1))
sketch9.addConstraint(Sketcher.Constraint("Coincident", 7, 2, 8, 1))
sketch9.addConstraint(Sketcher.Constraint("Coincident", 8, 2, 9, 1))
sketch9.addConstraint(Sketcher.Constraint("Tangent", 9, 2, 10, 2))
sketch9.addConstraint(Sketcher.Constraint("Tangent", 10, 1, 11, 1))
sketch9.addConstraint(Sketcher.Constraint("Tangent", 11, 2, 12, 2))
sketch9.addConstraint(Sketcher.Constraint("Tangent", 12, 1, 13, 1))
sketch9.addConstraint(Sketcher.Constraint("Tangent", 13, 2, 14, 2))
sketch9.addConstraint(Sketcher.Constraint("Tangent", 14, 1, 15, 1))
sketch9.addConstraint(Sketcher.Constraint("Coincident", 15, 2, 0, 1))
sketch9.addConstraint(Sketcher.Constraint("Horizontal", 0))
sketch9.addConstraint(Sketcher.Constraint("Vertical", 1))
sketch9.addConstraint(Sketcher.Constraint("Horizontal", 3))
sketch9.addConstraint(Sketcher.Constraint("Vertical", 7))
sketch9.addConstraint(Sketcher.Constraint("Horizontal", 8))
sketch9.addConstraint(Sketcher.Constraint("Vertical", 9))
sketch9.addConstraint(Sketcher.Constraint("Horizontal", 13))
sketch9.addConstraint(Sketcher.Constraint("Vertical", 15))
sketch9.addConstraint(Sketcher.Constraint("Equal", 4, 6))
sketch9.addConstraint(Sketcher.Constraint("Equal", 6, 10))
sketch9.addConstraint(Sketcher.Constraint("Equal", 10, 12))
sketch9.addConstraint(Sketcher.Constraint("Equal", 2, 14))
sketch9.addConstraint(Sketcher.Constraint("Symmetric", 6, 3, 10, 3, -2))
sketch9.addConstraint(Sketcher.Constraint("Symmetric", 4, 3, 12, 3, -2))
sketch9.addConstraint(Sketcher.Constraint("Equal", 3, 13))
sketch9.addConstraint(Sketcher.Constraint("Radius", 2, 0.6))
sketch9.addConstraint(Sketcher.Constraint("Radius", 4, 0.25))
sketch9.addConstraint(Sketcher.Constraint("DistanceX", 0, 2, 0, 1, 18.2))
sketch9.addConstraint(Sketcher.Constraint("DistanceX", 8, 1, 8, 2, 13.4))
sketch9.addConstraint(Sketcher.Constraint("DistanceY", 0, 2, -1, 1, 46.0))
sketch9.addConstraint(Sketcher.Constraint("DistanceY", 7, 2, -1, 1, 44.0))
sketch9.addConstraint(Sketcher.Constraint("Angle", 5, Q("-73.4996 deg")))
sketch9.addConstraint(Sketcher.Constraint("DistanceY", 1, 1, 1, 2, 7.75))
sketch9.addConstraint(Sketcher.Constraint("DistanceX", 3, 1, 3, 2, 1.169))
pocket6 = body.newObject("PartDesign::Pocket", "Pocket005")
pocket6.Profile = sketch9
pocket6.Length = 1.5
pocket6.Reversed = True

sketch10 = body.newObject("Sketcher::SketchObject", "Sketch009")
sketch10.AttachmentSupport = (doc.getObject("XZ_Plane"), [""])
sketch10.MapMode = "FlatFace"
sketch10.AttachmentOffset = App.Placement(V(0, 0, -6.8), App.Rotation())
sketch10.addGeometry(Part.LineSegment(V(-7, -37, 0), V(-7, -29, 0)), False)
sketch10.addGeometry(Part.LineSegment(V(-7, -29, 0), V(7, -29, 0)), False)
sketch10.addGeometry(Part.LineSegment(V(7, -29, 0), V(7, -37, 0)), False)
sketch10.addGeometry(Part.LineSegment(V(7, -37, 0), V(-7, -37, 0)), False)
sketch10.addConstraint(Sketcher.Constraint("Coincident", 0, 2, 1, 1))
sketch10.addConstraint(Sketcher.Constraint("Coincident", 1, 2, 2, 1))
sketch10.addConstraint(Sketcher.Constraint("Coincident", 2, 2, 3, 1))
sketch10.addConstraint(Sketcher.Constraint("Coincident", 3, 2, 0, 1))
sketch10.addConstraint(Sketcher.Constraint("Vertical", 0))
sketch10.addConstraint(Sketcher.Constraint("Horizontal", 1))
sketch10.addConstraint(Sketcher.Constraint("Vertical", 2))
sketch10.addConstraint(Sketcher.Constraint("Horizontal", 3))
sketch10.addConstraint(Sketcher.Constraint("DistanceX", 1, 1, 1, 2, 13.9))
sketch10.addConstraint(Sketcher.Constraint("DistanceY", 0, 1, 0, 2, 8.3))
sketch10.addConstraint(Sketcher.Constraint("DistanceX", 0, 2, -1, 1, 6.95))
sketch10.addConstraint(Sketcher.Constraint("DistanceY", 0, 2, -1, 1, 28.75))
pocket7 = body.newObject("PartDesign::Pocket", "Pocket006")
pocket7.Profile = sketch10
pocket7.Length = 0.5
pocket7.Reversed = True

sketch11 = body.newObject("Sketcher::SketchObject", "Sketch010")
sketch11.AttachmentSupport = (doc.getObject("XZ_Plane"), [""])
sketch11.MapMode = "FlatFace"
sketch11.AttachmentOffset = App.Placement(V(0, 0, -6.8), App.Rotation())
sketch11.addGeometry(Part.Circle(V(-5, -32.9, 0), V(0, 0, 1), 0.6), False)
sketch11.addConstraint(Sketcher.Constraint("Diameter", 0, 1.2))
sketch11.addConstraint(Sketcher.Constraint("DistanceX", 0, 3, -1, 1, 5.0))
sketch11.addConstraint(Sketcher.Constraint("DistanceY", 0, 3, -1, 1, 32.9))
pocket8 = body.newObject("PartDesign::Pocket", "Pocket007")
pocket8.Profile = sketch11
pocket8.Length = 1.5
pocket8.Reversed = True

sketch12 = body.newObject("Sketcher::SketchObject", "Sketch011")
sketch12.AttachmentSupport = (doc.getObject("XZ_Plane"), [""])
sketch12.MapMode = "FlatFace"
sketch12.AttachmentOffset = App.Placement(V(0, 0, -6.8), App.Rotation())
sketch12.addGeometry(Part.Circle(V(5, -32.9, 0), V(0, 0, 1), 0.6), False)
sketch12.addConstraint(Sketcher.Constraint("Diameter", 0, 1.2))
sketch12.addConstraint(Sketcher.Constraint("DistanceX", -1, 1, 0, 3, 5.0))
sketch12.addConstraint(Sketcher.Constraint("DistanceY", 0, 3, -1, 1, 32.9))
pocket9 = body.newObject("PartDesign::Pocket", "Pocket008")
pocket9.Profile = sketch12
pocket9.Length = 1.5
pocket9.Reversed = True

doc.recompute()
